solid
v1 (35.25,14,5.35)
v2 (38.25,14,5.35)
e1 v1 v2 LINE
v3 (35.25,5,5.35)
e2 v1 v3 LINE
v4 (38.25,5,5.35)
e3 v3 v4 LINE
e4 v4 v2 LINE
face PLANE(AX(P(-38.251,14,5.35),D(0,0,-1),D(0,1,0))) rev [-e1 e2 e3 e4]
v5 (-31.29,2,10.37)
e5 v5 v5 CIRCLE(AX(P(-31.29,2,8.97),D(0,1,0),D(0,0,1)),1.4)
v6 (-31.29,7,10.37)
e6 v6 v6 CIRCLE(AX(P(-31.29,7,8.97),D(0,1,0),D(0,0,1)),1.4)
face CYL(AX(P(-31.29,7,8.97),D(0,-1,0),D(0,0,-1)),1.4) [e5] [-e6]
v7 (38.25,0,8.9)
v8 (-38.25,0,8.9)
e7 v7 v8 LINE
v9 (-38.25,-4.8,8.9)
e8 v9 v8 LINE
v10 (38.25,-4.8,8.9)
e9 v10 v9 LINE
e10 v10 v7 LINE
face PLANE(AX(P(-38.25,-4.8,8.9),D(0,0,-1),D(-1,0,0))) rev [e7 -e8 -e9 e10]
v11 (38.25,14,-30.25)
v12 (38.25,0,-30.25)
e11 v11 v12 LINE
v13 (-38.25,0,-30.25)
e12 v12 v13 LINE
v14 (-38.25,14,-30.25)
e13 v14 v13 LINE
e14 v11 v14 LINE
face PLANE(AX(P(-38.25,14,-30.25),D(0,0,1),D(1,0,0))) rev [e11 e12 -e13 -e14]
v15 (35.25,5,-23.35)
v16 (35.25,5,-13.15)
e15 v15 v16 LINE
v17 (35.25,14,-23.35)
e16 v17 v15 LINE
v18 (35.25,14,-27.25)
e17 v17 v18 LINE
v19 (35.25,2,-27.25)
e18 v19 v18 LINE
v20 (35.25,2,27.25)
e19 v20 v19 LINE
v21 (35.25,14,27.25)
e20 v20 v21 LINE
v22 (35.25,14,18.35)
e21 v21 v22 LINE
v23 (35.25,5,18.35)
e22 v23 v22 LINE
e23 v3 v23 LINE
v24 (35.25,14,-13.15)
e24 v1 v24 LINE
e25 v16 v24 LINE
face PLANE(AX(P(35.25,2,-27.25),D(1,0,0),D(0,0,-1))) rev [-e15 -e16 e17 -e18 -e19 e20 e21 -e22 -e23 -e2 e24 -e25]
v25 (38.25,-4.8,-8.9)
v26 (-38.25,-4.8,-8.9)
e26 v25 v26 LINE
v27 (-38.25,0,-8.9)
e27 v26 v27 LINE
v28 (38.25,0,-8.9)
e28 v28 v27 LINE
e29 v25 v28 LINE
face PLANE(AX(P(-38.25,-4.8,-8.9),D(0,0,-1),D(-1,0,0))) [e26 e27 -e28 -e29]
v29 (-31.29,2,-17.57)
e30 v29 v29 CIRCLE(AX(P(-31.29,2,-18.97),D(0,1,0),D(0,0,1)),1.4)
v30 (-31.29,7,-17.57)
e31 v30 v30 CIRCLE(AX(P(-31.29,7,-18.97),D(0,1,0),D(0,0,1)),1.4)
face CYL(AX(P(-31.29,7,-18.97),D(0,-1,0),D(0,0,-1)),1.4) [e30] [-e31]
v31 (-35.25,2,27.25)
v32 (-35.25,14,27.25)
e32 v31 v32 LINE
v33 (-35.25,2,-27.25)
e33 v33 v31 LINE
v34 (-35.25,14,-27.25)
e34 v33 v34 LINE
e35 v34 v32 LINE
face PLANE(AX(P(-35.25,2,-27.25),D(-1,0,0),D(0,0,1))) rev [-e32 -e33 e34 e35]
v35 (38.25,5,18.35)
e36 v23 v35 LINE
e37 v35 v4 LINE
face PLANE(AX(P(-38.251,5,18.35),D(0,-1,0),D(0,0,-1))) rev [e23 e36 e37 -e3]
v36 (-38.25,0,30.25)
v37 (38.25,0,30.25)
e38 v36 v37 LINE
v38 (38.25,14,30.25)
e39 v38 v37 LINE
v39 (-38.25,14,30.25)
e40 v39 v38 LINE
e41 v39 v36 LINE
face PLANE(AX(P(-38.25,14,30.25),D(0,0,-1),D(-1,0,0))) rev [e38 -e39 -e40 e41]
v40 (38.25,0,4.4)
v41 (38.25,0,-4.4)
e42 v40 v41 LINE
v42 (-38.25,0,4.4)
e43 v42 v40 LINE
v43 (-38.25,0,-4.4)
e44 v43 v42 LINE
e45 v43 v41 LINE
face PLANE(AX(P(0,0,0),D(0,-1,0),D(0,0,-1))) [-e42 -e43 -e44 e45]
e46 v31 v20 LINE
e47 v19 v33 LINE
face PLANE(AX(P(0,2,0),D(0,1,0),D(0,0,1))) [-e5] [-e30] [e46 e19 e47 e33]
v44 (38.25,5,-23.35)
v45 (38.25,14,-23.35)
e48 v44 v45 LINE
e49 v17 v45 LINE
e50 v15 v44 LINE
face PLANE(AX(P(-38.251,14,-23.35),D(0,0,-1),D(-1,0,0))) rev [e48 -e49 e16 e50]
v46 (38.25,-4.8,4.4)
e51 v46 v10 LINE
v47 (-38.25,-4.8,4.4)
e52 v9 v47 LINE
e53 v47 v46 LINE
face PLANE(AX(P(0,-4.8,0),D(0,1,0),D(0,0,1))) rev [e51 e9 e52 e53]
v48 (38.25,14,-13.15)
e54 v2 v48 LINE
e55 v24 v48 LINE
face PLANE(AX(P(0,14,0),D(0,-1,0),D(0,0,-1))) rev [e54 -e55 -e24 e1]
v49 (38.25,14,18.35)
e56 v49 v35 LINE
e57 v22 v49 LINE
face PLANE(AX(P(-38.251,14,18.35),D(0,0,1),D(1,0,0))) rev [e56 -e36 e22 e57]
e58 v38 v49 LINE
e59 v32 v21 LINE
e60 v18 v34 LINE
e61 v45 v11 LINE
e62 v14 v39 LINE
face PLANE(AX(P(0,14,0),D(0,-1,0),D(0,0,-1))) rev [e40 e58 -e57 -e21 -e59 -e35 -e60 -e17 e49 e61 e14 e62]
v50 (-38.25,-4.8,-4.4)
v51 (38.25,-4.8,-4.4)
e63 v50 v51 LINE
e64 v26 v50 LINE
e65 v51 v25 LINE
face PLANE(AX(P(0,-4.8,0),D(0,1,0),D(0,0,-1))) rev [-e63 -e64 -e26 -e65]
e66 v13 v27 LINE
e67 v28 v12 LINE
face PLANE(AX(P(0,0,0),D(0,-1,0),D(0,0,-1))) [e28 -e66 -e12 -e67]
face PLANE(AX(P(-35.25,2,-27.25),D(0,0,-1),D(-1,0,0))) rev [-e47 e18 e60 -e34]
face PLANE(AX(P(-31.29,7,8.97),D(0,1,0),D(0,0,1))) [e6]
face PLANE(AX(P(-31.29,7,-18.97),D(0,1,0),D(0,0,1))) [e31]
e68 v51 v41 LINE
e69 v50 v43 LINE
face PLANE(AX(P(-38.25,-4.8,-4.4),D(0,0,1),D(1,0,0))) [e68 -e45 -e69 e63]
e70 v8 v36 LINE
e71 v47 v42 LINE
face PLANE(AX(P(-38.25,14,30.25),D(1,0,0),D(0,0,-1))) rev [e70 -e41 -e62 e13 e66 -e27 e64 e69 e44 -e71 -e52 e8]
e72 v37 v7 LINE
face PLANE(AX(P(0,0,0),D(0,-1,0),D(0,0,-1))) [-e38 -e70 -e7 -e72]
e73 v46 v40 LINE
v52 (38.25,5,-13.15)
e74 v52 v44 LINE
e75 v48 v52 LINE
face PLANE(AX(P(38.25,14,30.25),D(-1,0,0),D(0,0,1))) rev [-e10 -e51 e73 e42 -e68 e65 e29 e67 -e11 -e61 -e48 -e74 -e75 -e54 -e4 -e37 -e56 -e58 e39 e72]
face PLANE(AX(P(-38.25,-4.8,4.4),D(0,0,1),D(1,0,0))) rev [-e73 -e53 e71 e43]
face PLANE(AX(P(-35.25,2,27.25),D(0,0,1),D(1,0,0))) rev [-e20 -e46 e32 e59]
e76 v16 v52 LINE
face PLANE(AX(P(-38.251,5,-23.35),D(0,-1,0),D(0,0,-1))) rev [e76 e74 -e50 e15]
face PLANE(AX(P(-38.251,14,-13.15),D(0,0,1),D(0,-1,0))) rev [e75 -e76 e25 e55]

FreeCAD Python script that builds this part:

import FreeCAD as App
import Part
import Sketcher
from FreeCAD import Vector

doc = App.newDocument("Part")
body = doc.addObject("PartDesign::Body", "Body")

# Sketch on XZ plane
sketch1 = body.newObject("Sketcher::SketchObject", "Sketch")
sketch1.AttachmentSupport = (doc.getObject("XZ_Plane"), [""])
sketch1.MapMode = "FlatFace"
sketch1.addGeometry(Part.LineSegment(Vector(-38, -30, 0), Vector(-38, 30, 0)), False)
sketch1.addGeometry(Part.LineSegment(Vector(-38, 30, 0), Vector(38, 30, 0)), False)
sketch1.addGeometry(Part.LineSegment(Vector(38, 30, 0), Vector(38, -30, 0)), False)
sketch1.addGeometry(Part.LineSegment(Vector(38, -30, 0), Vector(-38, -30, 0)), False)
sketch1.addConstraint(Sketcher.Constraint("Coincident", 0, 2, 1, 1))
sketch1.addConstraint(Sketcher.Constraint("Coincident", 1, 2, 2, 1))
sketch1.addConstraint(Sketcher.Constraint("Coincident", 2, 2, 3, 1))
sketch1.addConstraint(Sketcher.Constraint("Coincident", 3, 2, 0, 1))
sketch1.addConstraint(Sketcher.Constraint("Vertical", 0))
sketch1.addConstraint(Sketcher.Constraint("Horizontal", 1))
sketch1.addConstraint(Sketcher.Constraint("Vertical", 2))
sketch1.addConstraint(Sketcher.Constraint("Horizontal", 3))
sketch1.addConstraint(Sketcher.Constraint("Symmetric", 0, 2, 2, 2, -1, 1))
sketch1.addConstraint(Sketcher.Constraint("DistanceX", 1, 1, 1, 2, 76.5))
sketch1.addConstraint(Sketcher.Constraint("DistanceY", 0, 1, 0, 2, 60.5))
pad1 = body.newObject("PartDesign::Pad", "Pad")
pad1.Profile = sketch1
pad1.Length = 14
pad1.Reversed = True

# Sketch on XZ plane
sketch2 = body.newObject("Sketcher::SketchObject", "Sketch001")
sketch2.AttachmentSupport = (doc.getObject("XZ_Plane"), [""])
sketch2.MapMode = "FlatFace"
sketch2.AttachmentOffset = App.Placement(Vector(0, 0, -14), App.Rotation())
sketch2.addGeometry(Part.LineSegment(Vector(-35, -27, 0), Vector(-35, 27, 0)), False)
sketch2.addGeometry(Part.LineSegment(Vector(-35, 27, 0), Vector(35, 27, 0)), False)
sketch2.addGeometry(Part.LineSegment(Vector(35, 27, 0), Vector(35, -27, 0)), False)
sketch2.addGeometry(Part.LineSegment(Vector(35, -27, 0), Vector(-35, -27, 0)), False)
sketch2.addConstraint(Sketcher.Constraint("Coincident", 0, 2, 1, 1))
sketch2.addConstraint(Sketcher.Constraint("Coincident", 1, 2, 2, 1))
sketch2.addConstraint(Sketcher.Constraint("Coincident", 2, 2, 3, 1))
sketch2.addConstraint(Sketcher.Constraint("Coincident", 3, 2, 0, 1))
sketch2.addConstraint(Sketcher.Constraint("Vertical", 0))
sketch2.addConstraint(Sketcher.Constraint("Horizontal", 1))
sketch2.addConstraint(Sketcher.Constraint("Vertical", 2))
sketch2.addConstraint(Sketcher.Constraint("Horizontal", 3))
sketch2.addConstraint(Sketcher.Constraint("Symmetric", 0, 2, 2, 2, -1, 1))
sketch2.addConstraint(Sketcher.Constraint("DistanceX", 1, 1, 1, 2, 70.5))
sketch2.addConstraint(Sketcher.Constraint("DistanceY", 0, 1, 0, 2, 54.5))
pocket1 = body.newObject("PartDesign::Pocket", "Pocket")
pocket1.Profile = sketch2
pocket1.Length = 12
pocket1.Reversed = True

# Sketch on YZ plane
sketch3 = body.newObject("Sketcher::SketchObject", "Sketch002")
sketch3.AttachmentSupport = (doc.getObject("YZ_Plane"), [""])
sketch3.MapMode = "FlatFace"
sketch3.AttachmentOffset = App.Placement(Vector(0, 0, 38.25), App.Rotation())
sketch3.addGeometry(Part.LineSegment(Vector(14, 18, 0), Vector(5, 18, 0)), False)
sketch3.addGeometry(Part.LineSegment(Vector(5, 18, 0), Vector(5, 5, 0)), False)
sketch3.addGeometry(Part.LineSegment(Vector(5, 5, 0), Vector(14, 5, 0)), False)
sketch3.addGeometry(Part.LineSegment(Vector(14, 5, 0), Vector(14, 18, 0)), False)
sketch3.addConstraint(Sketcher.Constraint("Coincident", 0, 2, 1, 1))
sketch3.addConstraint(Sketcher.Constraint("Coincident", 1, 2, 2, 1))
sketch3.addConstraint(Sketcher.Constraint("Coincident", 2, 2, 3, 1))
sketch3.addConstraint(Sketcher.Constraint("Coincident", 3, 2, 0, 1))
sketch3.addConstraint(Sketcher.Constraint("Horizontal", 0))
sketch3.addConstraint(Sketcher.Constraint("Vertical", 1))
sketch3.addConstraint(Sketcher.Constraint("Horizontal", 2))
sketch3.addConstraint(Sketcher.Constraint("Vertical", 3))
sketch3.addConstraint(Sketcher.Constraint("DistanceX", 0, 2, 0, 1, 9.0))
sketch3.addConstraint(Sketcher.Constraint("DistanceY", 1, 2, 1, 1, 13.0))
sketch3.addConstraint(Sketcher.Constraint("DistanceX", -1, 1, 0, 2, 5.0))
sketch3.addConstraint(Sketcher.Constraint("DistanceY", -1, 1, 0, 2, 18.35))
pocket2 = body.newObject("PartDesign::Pocket", "Pocket001")
pocket2.Profile = sketch3
pocket2.Type = "UpToFirst"

# Sketch on YZ plane
sketch4 = body.newObject("Sketcher::SketchObject", "Sketch003")
sketch4.AttachmentSupport = (doc.getObject("YZ_Plane"), [""])
sketch4.MapMode = "FlatFace"
sketch4.AttachmentOffset = App.Placement(Vector(0, 0, 38.25), App.Rotation())
sketch4.addGeometry(Part.LineSegment(Vector(14, -13, 0), Vector(5, -13, 0)), False)
sketch4.addGeometry(Part.LineSegment(Vector(5, -13, 0), Vector(5, -23, 0)), False)
sketch4.addGeometry(Part.LineSegment(Vector(5, -23, 0), Vector(14, -23, 0)), False)
sketch4.addGeometry(Part.LineSegment(Vector(14, -23, 0), Vector(14, -13, 0)), False)
sketch4.addConstraint(Sketcher.Constraint("Coincident", 0, 2, 1, 1))
sketch4.addConstraint(Sketcher.Constraint("Coincident", 1, 2, 2, 1))
sketch4.addConstraint(Sketcher.Constraint("Coincident", 2, 2, 3, 1))
sketch4.addConstraint(Sketcher.Constraint("Coincident", 3, 2, 0, 1))
sketch4.addConstraint(Sketcher.Constraint("Horizontal", 0))
sketch4.addConstraint(Sketcher.Constraint("Vertical", 1))
sketch4.addConstraint(Sketcher.Constraint("Horizontal", 2))
sketch4.addConstraint(Sketcher.Constraint("Vertical", 3))
sketch4.addConstraint(Sketcher.Constraint("DistanceX", 0, 2, 0, 1, 9.0))
sketch4.addConstraint(Sketcher.Constraint("DistanceY", 1, 2, 1, 1, 10.2))
sketch4.addConstraint(Sketcher.Constraint("DistanceX", -1, 1, 0, 2, 5.0))
sketch4.addConstraint(Sketcher.Constraint("DistanceY", 0, 2, -1, 1, 13.15))
pocket3 = body.newObject("PartDesign::Pocket", "Pocket002")
pocket3.Profile = sketch4
pocket3.Type = "UpToFirst"

# Sketch on XZ plane
sketch5 = body.newObject("Sketcher::SketchObject", "Sketch004")
sketch5.AttachmentSupport = (doc.getObject("XZ_Plane"), [""])
sketch5.MapMode = "FlatFace"
sketch5.addGeometry(Part.LineSegment(Vector(-38.2, 8.9, 0), Vector(-38.2, 4.4, 0)), False)
sketch5.addGeometry(Part.LineSegment(Vector(-38.2, 4.4, 0), Vector(38.2, 4.4, 0)), False)
sketch5.addGeometry(Part.LineSegment(Vector(38.2, 4.4, 0), Vector(38.2, 8.9, 0)), False)
sketch5.addGeometry(Part.LineSegment(Vector(38.2, 8.9, 0), Vector(-38.2, 8.9, 0)), False)
sketch5.addConstraint(Sketcher.Constraint("Coincident", 0, 2, 1, 1))
sketch5.addConstraint(Sketcher.Constraint("Coincident", 1, 2, 2, 1))
sketch5.addConstraint(Sketcher.Constraint("Coincident", 2, 2, 3, 1))
sketch5.addConstraint(Sketcher.Constraint("Coincident", 3, 2, 0, 1))
sketch5.addConstraint(Sketcher.Constraint("Vertical", 0))
sketch5.addConstraint(Sketcher.Constraint("Horizontal", 1))
sketch5.addConstraint(Sketcher.Constraint("Vertical", 2))
sketch5.addConstraint(Sketcher.Constraint("Horizontal", 3))
sketch5.addConstraint(Sketcher.Constraint("DistanceX", 1, 1, 1, 2, 76.5))
sketch5.addConstraint(Sketcher.Constraint("DistanceY", 0, 2, 0, 1, 4.5))
sketch5.addConstraint(Sketcher.Constraint("DistanceY", -1, 1, 0, 2, 4.4))
sketch5.addConstraint(Sketcher.Constraint("DistanceX", 0, 2, -1, 1, 38.25))
pad2 = body.newObject("PartDesign::Pad", "Pad001")
pad2.Profile = sketch5
pad2.Length = 4.8
doc.recompute()

mirrored = body.newObject("PartDesign::Mirrored", "Mirrored")
mirrored.Originals = [pad2]
mirrored.MirrorPlane = (doc.getObject("XY_Plane"), [""])
body.Tip = mirrored

# Sketch on XZ plane
sketch6 = body.newObject("Sketcher::SketchObject", "Sketch005")
sketch6.AttachmentSupport = (doc.getObject("XZ_Plane"), [""])
sketch6.MapMode = "FlatFace"
sketch6.AttachmentOffset = App.Placement(Vector(0, 0, -2), App.Rotation())
sketch6.addGeometry(Part.Circle(Vector(-31.3, 9, 0), Vector(0, 0, 1), 1.4), False)
sketch6.addGeometry(Part.Circle(Vector(-31.3, -19, 0), Vector(0, 0, 1), 1.4), False)
sketch6.addConstraint(Sketcher.Constraint("Equal", 0, 1))
sketch6.addConstraint(Sketcher.Constraint("Vertical", 0, 3, 1, 3))
sketch6.addConstraint(Sketcher.Constraint("Diameter", 0, 2.8))
sketch6.addConstraint(Sketcher.Constraint("DistanceX", 0, 3, -1, 1, 31.29))
sketch6.addConstraint(Sketcher.Constraint("DistanceY", -1, 1, 0, 3, 8.97))
sketch6.addConstraint(Sketcher.Constraint("DistanceY", 1, 3, -1, 1, 18.97))
pad3 = body.newObject("PartDesign::Pad", "Pad002")
pad3.Profile = sketch6
pad3.Length = 5
pad3.Reversed = True

doc.recompute()
